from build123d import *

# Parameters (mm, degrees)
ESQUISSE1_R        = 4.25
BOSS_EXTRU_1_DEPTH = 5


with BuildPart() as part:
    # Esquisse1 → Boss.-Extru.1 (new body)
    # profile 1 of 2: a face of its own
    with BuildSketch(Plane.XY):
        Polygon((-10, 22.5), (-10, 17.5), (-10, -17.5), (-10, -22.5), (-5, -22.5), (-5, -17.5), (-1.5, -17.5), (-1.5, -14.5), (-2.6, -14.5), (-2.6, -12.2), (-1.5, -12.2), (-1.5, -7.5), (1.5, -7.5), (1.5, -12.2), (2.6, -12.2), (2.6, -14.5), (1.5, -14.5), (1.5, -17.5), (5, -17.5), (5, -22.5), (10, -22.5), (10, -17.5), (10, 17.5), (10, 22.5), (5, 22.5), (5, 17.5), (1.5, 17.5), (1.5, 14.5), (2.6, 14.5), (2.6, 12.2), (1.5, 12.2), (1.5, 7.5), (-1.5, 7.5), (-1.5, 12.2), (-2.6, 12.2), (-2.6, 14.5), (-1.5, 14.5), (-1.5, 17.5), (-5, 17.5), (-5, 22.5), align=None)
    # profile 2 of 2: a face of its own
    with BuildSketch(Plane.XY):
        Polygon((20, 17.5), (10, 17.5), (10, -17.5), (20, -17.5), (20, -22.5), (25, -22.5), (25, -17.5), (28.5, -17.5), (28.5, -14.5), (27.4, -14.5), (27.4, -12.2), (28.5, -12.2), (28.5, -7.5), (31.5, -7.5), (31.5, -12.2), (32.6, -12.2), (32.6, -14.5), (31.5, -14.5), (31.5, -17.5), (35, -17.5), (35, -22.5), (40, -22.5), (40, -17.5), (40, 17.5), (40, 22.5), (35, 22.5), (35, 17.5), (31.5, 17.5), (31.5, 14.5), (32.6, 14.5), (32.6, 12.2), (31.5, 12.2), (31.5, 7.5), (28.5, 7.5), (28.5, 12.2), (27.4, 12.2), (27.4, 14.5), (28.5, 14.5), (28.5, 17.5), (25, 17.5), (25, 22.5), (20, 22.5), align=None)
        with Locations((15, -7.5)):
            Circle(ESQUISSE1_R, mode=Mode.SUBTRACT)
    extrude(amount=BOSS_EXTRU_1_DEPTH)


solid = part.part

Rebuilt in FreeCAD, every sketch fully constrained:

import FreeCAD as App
import Part
import Sketcher

V = App.Vector
Q = App.Units.Quantity

doc = App.newDocument("Part")
params = doc.addObject("Spreadsheet::Sheet", "Params")
for row, (alias, value) in enumerate([
    ("sketch1_diameter", "8.5 mm"),
    ("sketch1_width", "5 mm"),
    ("sketch1_width2", "3 mm"),
    ("sketch1_width3", "10 mm"),
    ("sketch1_height", "45 mm"),
    ("pad1_length", "5 mm"),
], start=1):
    params.set(f"A{row}", alias)
    params.set(f"B{row}", "=" + value)
    params.setAlias(f"B{row}", alias)

body = doc.addObject("PartDesign::Body", "Body")

sketch1 = body.newObject("Sketcher::SketchObject", "Sketch")
sketch1.AttachmentSupport = (doc.getObject("XY_Plane"), [""])
sketch1.MapMode = "FlatFace"
sketch1.addGeometry(Part.LineSegment(V(-10, 22.5, 0), V(-10, -22.5, 0)), False)
sketch1.addGeometry(Part.LineSegment(V(-10, -22.5, 0), V(-5, -22.5, 0)), False)
sketch1.addGeometry(Part.LineSegment(V(-5, -22.5, 0), V(-5, -17.5, 0)), False)
sketch1.addGeometry(Part.LineSegment(V(-5, -17.5, 0), V(-1.5, -17.5, 0)), False)
sketch1.addGeometry(Part.LineSegment(V(-1.5, -17.5, 0), V(-1.5, -14.5, 0)), False)
sketch1.addGeometry(Part.LineSegment(V(-1.5, -14.5, 0), V(-2.6, -14.5, 0)), False)
sketch1.addGeometry(Part.LineSegment(V(-2.6, -14.5, 0), V(-2.6, -12.2, 0)), False)
sketch1.addGeometry(Part.LineSegment(V(-2.6, -12.2, 0), V(-1.5, -12.2, 0)), False)
sketch1.addGeometry(Part.LineSegment(V(-1.5, -12.2, 0), V(-1.5, -7.5, 0)), False)
sketch1.addGeometry(Part.LineSegment(V(-1.5, -7.5, 0), V(1.5, -7.5, 0)), False)
sketch1.addGeometry(Part.LineSegment(V(1.5, -7.5, 0), V(1.5, -12.2, 0)), False)
sketch1.addGeometry(Part.LineSegment(V(1.5, -12.2, 0), V(2.6, -12.2, 0)), False)
sketch1.addGeometry(Part.LineSegment(V(2.6, -12.2, 0), V(2.6, -14.5, 0)), False)
sketch1.addGeometry(Part.LineSegment(V(2.6, -14.5, 0), V(1.5, -14.5, 0)), False)
sketch1.addGeometry(Part.LineSegment(V(1.5, -14.5, 0), V(1.5, -17.5, 0)), False)
sketch1.addGeometry(Part.LineSegment(V(1.5, -17.5, 0), V(5, -17.5, 0)), False)
sketch1.addGeometry(Part.LineSegment(V(5, -17.5, 0), V(5, -22.5, 0)), False)
sketch1.addGeometry(Part.LineSegment(V(5, -22.5, 0), V(10, -22.5, 0)), False)
sketch1.addGeometry(Part.LineSegment(V(10, -22.5, 0), V(10, -17.5, 0)), False)
sketch1.addGeometry(Part.LineSegment(V(10, -17.5, 0), V(20, -17.5, 0)), False)
sketch1.addGeometry(Part.LineSegment(V(20, -17.5, 0), V(20, -22.5, 0)), False)
sketch1.addGeometry(Part.LineSegment(V(20, -22.5, 0), V(25, -22.5, 0)), False)
sketch1.addGeometry(Part.LineSegment(V(25, -22.5, 0), V(25, -17.5, 0)), False)
sketch1.addGeometry(Part.LineSegment(V(25, -17.5, 0), V(28.5, -17.5, 0)), False)
sketch1.addGeometry(Part.LineSegment(V(28.5, -17.5, 0), V(28.5, -14.5, 0)), False)
sketch1.addGeometry(Part.LineSegment(V(28.5, -14.5, 0), V(27.4, -14.5, 0)), False)
sketch1.addGeometry(Part.LineSegment(V(27.4, -14.5, 0), V(27.4, -12.2, 0)), False)
sketch1.addGeometry(Part.LineSegment(V(27.4, -12.2, 0), V(28.5, -12.2, 0)), False)
sketch1.addGeometry(Part.LineSegment(V(28.5, -12.2, 0), V(28.5, -7.5, 0)), False)
sketch1.addGeometry(Part.LineSegment(V(28.5, -7.5, 0), V(31.5, -7.5, 0)), False)
sketch1.addGeometry(Part.LineSegment(V(31.5, -7.5, 0), V(31.5, -12.2, 0)), False)
sketch1.addGeometry(Part.LineSegment(V(31.5, -12.2, 0), V(32.6, -12.2, 0)), False)
sketch1.addGeometry(Part.LineSegment(V(32.6, -12.2, 0), V(32.6, -14.5, 0)), False)
sketch1.addGeometry(Part.LineSegment(V(32.6, -14.5, 0), V(31.5, -14.5, 0)), False)
sketch1.addGeometry(Part.LineSegment(V(31.5, -14.5, 0), V(31.5, -17.5, 0)), False)
sketch1.addGeometry(Part.LineSegment(V(31.5, -17.5, 0), V(35, -17.5, 0)), False)
sketch1.addGeometry(Part.LineSegment(V(35, -17.5, 0), V(35, -22.5, 0)), False)
sketch1.addGeometry(Part.LineSegment(V(35, -22.5, 0), V(40, -22.5, 0)), False)
sketch1.addGeometry(Part.LineSegment(V(40, -22.5, 0), V(40, 22.5, 0)), False)
sketch1.addGeometry(Part.LineSegment(V(40, 22.5, 0), V(35, 22.5, 0)), False)
sketch1.addGeometry(Part.LineSegment(V(35, 22.5, 0), V(35, 17.5, 0)), False)
sketch1.addGeometry(Part.LineSegment(V(35, 17.5, 0), V(31.5, 17.5, 0)), False)
sketch1.addGeometry(Part.LineSegment(V(31.5, 17.5, 0), V(31.5, 14.5, 0)), False)
sketch1.addGeometry(Part.LineSegment(V(31.5, 14.5, 0), V(32.6, 14.5, 0)), False)
sketch1.addGeometry(Part.LineSegment(V(32.6, 14.5, 0), V(32.6, 12.2, 0)), False)
sketch1.addGeometry(Part.LineSegment(V(32.6, 12.2, 0), V(31.5, 12.2, 0)), False)
sketch1.addGeometry(Part.LineSegment(V(31.5, 12.2, 0), V(31.5, 7.5, 0)), False)
sketch1.addGeometry(Part.LineSegment(V(31.5, 7.5, 0), V(28.5, 7.5, 0)), False)
sketch1.addGeometry(Part.LineSegment(V(28.5, 7.5, 0), V(28.5, 12.2, 0)), False)
sketch1.addGeometry(Part.LineSegment(V(28.5, 12.2, 0), V(27.4, 12.2, 0)), False)
sketch1.addGeometry(Part.LineSegment(V(27.4, 12.2, 0), V(27.4, 14.5, 0)), False)
sketch1.addGeometry(Part.LineSegment(V(27.4, 14.5, 0), V(28.5, 14.5, 0)), False)
sketch1.addGeometry(Part.LineSegment(V(28.5, 14.5, 0), V(28.5, 17.5, 0)), False)
sketch1.addGeometry(Part.LineSegment(V(28.5, 17.5, 0), V(25, 17.5, 0)), False)
sketch1.addGeometry(Part.LineSegment(V(25, 17.5, 0), V(25, 22.5, 0)), False)
sketch1.addGeometry(Part.LineSegment(V(25, 22.5, 0), V(20, 22.5, 0)), False)
sketch1.addGeometry(Part.LineSegment(V(20, 22.5, 0), V(20, 17.5, 0)), False)
sketch1.addGeometry(Part.LineSegment(V(20, 17.5, 0), V(10, 17.5, 0)), False)
sketch1.addGeometry(Part.LineSegment(V(10, 17.5, 0), V(10, 22.5, 0)), False)
sketch1.addGeometry(Part.LineSegment(V(10, 22.5, 0), V(5, 22.5, 0)), False)
sketch1.addGeometry(Part.LineSegment(V(5, 22.5, 0), V(5, 17.5, 0)), False)
sketch1.addGeometry(Part.LineSegment(V(5, 17.5, 0), V(1.5, 17.5, 0)), False)
sketch1.addGeometry(Part.LineSegment(V(1.5, 17.5, 0), V(1.5, 14.5, 0)), False)
sketch1.addGeometry(Part.LineSegment(V(1.5, 14.5, 0), V(2.6, 14.5, 0)), False)
sketch1.addGeometry(Part.LineSegment(V(2.6, 14.5, 0), V(2.6, 12.2, 0)), False)
sketch1.addGeometry(Part.LineSegment(V(2.6, 12.2, 0), V(1.5, 12.2, 0)), False)
sketch1.addGeometry(Part.LineSegment(V(1.5, 12.2, 0), V(1.5, 7.5, 0)), False)
sketch1.addGeometry(Part.LineSegment(V(1.5, 7.5, 0), V(-1.5, 7.5, 0)), False)
sketch1.addGeometry(Part.LineSegment(V(-1.5, 7.5, 0), V(-1.5, 12.2, 0)), False)
sketch1.addGeometry(Part.LineSegment(V(-1.5, 12.2, 0), V(-2.6, 12.2, 0)), False)
sketch1.addGeometry(Part.LineSegment(V(-2.6, 12.2, 0), V(-2.6, 14.5, 0)), False)
sketch1.addGeometry(Part.LineSegment(V(-2.6, 14.5, 0), V(-1.5, 14.5, 0)), False)
sketch1.addGeometry(Part.LineSegment(V(-1.5, 14.5, 0), V(-1.5, 17.5, 0)), False)
sketch1.addGeometry(Part.LineSegment(V(-1.5, 17.5, 0), V(-5, 17.5, 0)), False)
sketch1.addGeometry(Part.LineSegment(V(-5, 17.5, 0), V(-5, 22.5, 0)), False)
sketch1.addGeometry(Part.LineSegment(V(-5, 22.5, 0), V(-10, 22.5, 0)), False)
sketch1.addGeometry(Part.Circle(V(15, -7.5, 0), V(0, 0, 1), 4.2), False)
sketch1.addConstraint(Sketcher.Constraint("Coincident", 0, 2, 1, 1))
sketch1.addConstraint(Sketcher.Constraint("Coincident", 1, 2, 2, 1))
sketch1.addConstraint(Sketcher.Constraint("Coincident", 2, 2, 3, 1))
sketch1.addConstraint(Sketcher.Constraint("Coincident", 3, 2, 4, 1))
sketch1.addConstraint(Sketcher.Constraint("Coincident", 4, 2, 5, 1))
sketch1.addConstraint(Sketcher.Constraint("Coincident", 5, 2, 6, 1))
sketch1.addConstraint(Sketcher.Constraint("Coincident", 6, 2, 7, 1))
sketch1.addConstraint(Sketcher.Constraint("Coincident", 7, 2, 8, 1))
sketch1.addConstraint(Sketcher.Constraint("Coincident", 8, 2, 9, 1))
sketch1.addConstraint(Sketcher.Constraint("Coincident", 9, 2, 10, 1))
sketch1.addConstraint(Sketcher.Constraint("Coincident", 10, 2, 11, 1))
sketch1.addConstraint(Sketcher.Constraint("Coincident", 11, 2, 12, 1))
sketch1.addConstraint(Sketcher.Constraint("Coincident", 12, 2, 13, 1))
sketch1.addConstraint(Sketcher.Constraint("Coincident", 13, 2, 14, 1))
sketch1.addConstraint(Sketcher.Constraint("Coincident", 14, 2, 15, 1))
sketch1.addConstraint(Sketcher.Constraint("Coincident", 15, 2, 16, 1))
sketch1.addConstraint(Sketcher.Constraint("Coincident", 16, 2, 17, 1))
sketch1.addConstraint(Sketcher.Constraint("Coincident", 17, 2, 18, 1))
sketch1.addConstraint(Sketcher.Constraint("Coincident", 18, 2, 19, 1))
sketch1.addConstraint(Sketcher.Constraint("Coincident", 19, 2, 20, 1))
sketch1.addConstraint(Sketcher.Constraint("Coincident", 20, 2, 21, 1))
sketch1.addConstraint(Sketcher.Constraint("Coincident", 21, 2, 22, 1))
sketch1.addConstraint(Sketcher.Constraint("Coincident", 22, 2, 23, 1))
sketch1.addConstraint(Sketcher.Constraint("Coincident", 23, 2, 24, 1))
sketch1.addConstraint(Sketcher.Constraint("Coincident", 24, 2, 25, 1))
sketch1.addConstraint(Sketcher.Constraint("Coincident", 25, 2, 26, 1))
sketch1.addConstraint(Sketcher.Constraint("Coincident", 26, 2, 27, 1))
sketch1.addConstraint(Sketcher.Constraint("Coincident", 27, 2, 28, 1))
sketch1.addConstraint(Sketcher.Constraint("Coincident", 28, 2, 29, 1))
sketch1.addConstraint(Sketcher.Constraint("Coincident", 29, 2, 30, 1))
sketch1.addConstraint(Sketcher.Constraint("Coincident", 30, 2, 31, 1))
sketch1.addConstraint(Sketcher.Constraint("Coincident", 31, 2, 32, 1))
sketch1.addConstraint(Sketcher.Constraint("Coincident", 32, 2, 33, 1))
sketch1.addConstraint(Sketcher.Constraint("Coincident", 33, 2, 34, 1))
sketch1.addConstraint(Sketcher.Constraint("Coincident", 34, 2, 35, 1))
sketch1.addConstraint(Sketcher.Constraint("Coincident", 35, 2, 36, 1))
sketch1.addConstraint(Sketcher.Constraint("Coincident", 36, 2, 37, 1))
sketch1.addConstraint(Sketcher.Constraint("Coincident", 37, 2, 38, 1))
sketch1.addConstraint(Sketcher.Constraint("Coincident", 38, 2, 39, 1))
sketch1.addConstraint(Sketcher.Constraint("Coincident", 39, 2, 40, 1))
sketch1.addConstraint(Sketcher.Constraint("Coincident", 40, 2, 41, 1))
sketch1.addConstraint(Sketcher.Constraint("Coincident", 41, 2, 42, 1))
sketch1.addConstraint(Sketcher.Constraint("Coincident", 42, 2, 43, 1))
sketch1.addConstraint(Sketcher.Constraint("Coincident", 43, 2, 44, 1))
sketch1.addConstraint(Sketcher.Constraint("Coincident", 44, 2, 45, 1))
sketch1.addConstraint(Sketcher.Constraint("Coincident", 45, 2, 46, 1))
sketch1.addConstraint(Sketcher.Constraint("Coincident", 46, 2, 47, 1))
sketch1.addConstraint(Sketcher.Constraint("Coincident", 47, 2, 48, 1))
sketch1.addConstraint(Sketcher.Constraint("Coincident", 48, 2, 49, 1))
sketch1.addConstraint(Sketcher.Constraint("Coincident", 49, 2, 50, 1))
sketch1.addConstraint(Sketcher.Constraint("Coincident", 50, 2, 51, 1))
sketch1.addConstraint(Sketcher.Constraint("Coincident", 51, 2, 52, 1))
sketch1.addConstraint(Sketcher.Constraint("Coincident", 52, 2, 53, 1))
sketch1.addConstraint(Sketcher.Constraint("Coincident", 53, 2, 54, 1))
sketch1.addConstraint(Sketcher.Constraint("Coincident", 54, 2, 55, 1))
sketch1.addConstraint(Sketcher.Constraint("Coincident", 55, 2, 56, 1))
sketch1.addConstraint(Sketcher.Constraint("Coincident", 56, 2, 57, 1))
sketch1.addConstraint(Sketcher.Constraint("Coincident", 57, 2, 58, 1))
sketch1.addConstraint(Sketcher.Constraint("Coincident", 58, 2, 59, 1))
sketch1.addConstraint(Sketcher.Constraint("Coincident", 59, 2, 60, 1))
sketch1.addConstraint(Sketcher.Constraint("Coincident", 60, 2, 61, 1))
sketch1.addConstraint(Sketcher.Constraint("Coincident", 61, 2, 62, 1))
sketch1.addConstraint(Sketcher.Constraint("Coincident", 62, 2, 63, 1))
sketch1.addConstraint(Sketcher.Constraint("Coincident", 63, 2, 64, 1))
sketch1.addConstraint(Sketcher.Constraint("Coincident", 64, 2, 65, 1))
sketch1.addConstraint(Sketcher.Constraint("Coincident", 65, 2, 66, 1))
sketch1.addConstraint(Sketcher.Constraint("Coincident", 66, 2, 67, 1))
sketch1.addConstraint(Sketcher.Constraint("Coincident", 67, 2, 68, 1))
sketch1.addConstraint(Sketcher.Constraint("Coincident", 68, 2, 69, 1))
sketch1.addConstraint(Sketcher.Constraint("Coincident", 69, 2, 70, 1))
sketch1.addConstraint(Sketcher.Constraint("Coincident", 70, 2, 71, 1))
sketch1.addConstraint(Sketcher.Constraint("Coincident", 71, 2, 72, 1))
sketch1.addConstraint(Sketcher.Constraint("Coincident", 72, 2, 73, 1))
sketch1.addConstraint(Sketcher.Constraint("Coincident", 73, 2, 74, 1))
sketch1.addConstraint(Sketcher.Constraint("Coincident", 74, 2, 75, 1))
sketch1.addConstraint(Sketcher.Constraint("Coincident", 75, 2, 0, 1))
sketch1.addConstraint(Sketcher.Constraint("Vertical", 0))
sketch1.addConstraint(Sketcher.Constraint("Horizontal", 1))
sketch1.addConstraint(Sketcher.Constraint("Vertical", 2))
sketch1.addConstraint(Sketcher.Constraint("Horizontal", 3))
sketch1.addConstraint(Sketcher.Constraint("Vertical", 4))
sketch1.addConstraint(Sketcher.Constraint("Horizontal", 5))
sketch1.addConstraint(Sketcher.Constraint("Vertical", 6))
sketch1.addConstraint(Sketcher.Constraint("Horizontal", 7))
sketch1.addConstraint(Sketcher.Constraint("Vertical", 8))
sketch1.addConstraint(Sketcher.Constraint("Horizontal", 9))
sketch1.addConstraint(Sketcher.Constraint("Vertical", 10))
sketch1.addConstraint(Sketcher.Constraint("Horizontal", 11))
sketch1.addConstraint(Sketcher.Constraint("Vertical", 12))
sketch1.addConstraint(Sketcher.Constraint("Horizontal", 13))
sketch1.addConstraint(Sketcher.Constraint("Vertical", 14))
sketch1.addConstraint(Sketcher.Constraint("Horizontal", 15))
sketch1.addConstraint(Sketcher.Constraint("Vertical", 16))
sketch1.addConstraint(Sketcher.Constraint("Horizontal", 17))
sketch1.addConstraint(Sketcher.Constraint("Vertical", 18))
sketch1.addConstraint(Sketcher.Constraint("Horizontal", 19))
sketch1.addConstraint(Sketcher.Constraint("Vertical", 20))
sketch1.addConstraint(Sketcher.Constraint("Horizontal", 21))
sketch1.addConstraint(Sketcher.Constraint("Vertical", 22))
sketch1.addConstraint(Sketcher.Constraint("Horizontal", 23))
sketch1.addConstraint(Sketcher.Constraint("Vertical", 24))
sketch1.addConstraint(Sketcher.Constraint("Horizontal", 25))
sketch1.addConstraint(Sketcher.Constraint("Vertical", 26))
sketch1.addConstraint(Sketcher.Constraint("Horizontal", 27))
sketch1.addConstraint(Sketcher.Constraint("Vertical", 28))
sketch1.addConstraint(Sketcher.Constraint("Horizontal", 29))
sketch1.addConstraint(Sketcher.Constraint("Vertical", 30))
sketch1.addConstraint(Sketcher.Constraint("Horizontal", 31))
sketch1.addConstraint(Sketcher.Constraint("Vertical", 32))
sketch1.addConstraint(Sketcher.Constraint("Horizontal", 33))
sketch1.addConstraint(Sketcher.Constraint("Vertical", 34))
sketch1.addConstraint(Sketcher.Constraint("Horizontal", 35))
sketch1.addConstraint(Sketcher.Constraint("Vertical", 36))
sketch1.addConstraint(Sketcher.Constraint("Horizontal", 37))
sketch1.addConstraint(Sketcher.Constraint("Vertical", 38))
sketch1.addConstraint(Sketcher.Constraint("Horizontal", 39))
sketch1.addConstraint(Sketcher.Constraint("Vertical", 40))
sketch1.addConstraint(Sketcher.Constraint("Horizontal", 41))
sketch1.addConstraint(Sketcher.Constraint("Vertical", 42))
sketch1.addConstraint(Sketcher.Constraint("Horizontal", 43))
sketch1.addConstraint(Sketcher.Constraint("Vertical", 44))
sketch1.addConstraint(Sketcher.Constraint("Horizontal", 45))
sketch1.addConstraint(Sketcher.Constraint("Vertical", 46))
sketch1.addConstraint(Sketcher.Constraint("Horizontal", 47))
sketch1.addConstraint(Sketcher.Constraint("Vertical", 48))
sketch1.addConstraint(Sketcher.Constraint("Horizontal", 49))
sketch1.addConstraint(Sketcher.Constraint("Vertical", 50))
sketch1.addConstraint(Sketcher.Constraint("Horizontal", 51))
sketch1.addConstraint(Sketcher.Constraint("Vertical", 52))
sketch1.addConstraint(Sketcher.Constraint("Horizontal", 53))
sketch1.addConstraint(Sketcher.Constraint("Vertical", 54))
sketch1.addConstraint(Sketcher.Constraint("Horizontal", 55))
sketch1.addConstraint(Sketcher.Constraint("Vertical", 56))
sketch1.addConstraint(Sketcher.Constraint("Horizontal", 57))
sketch1.addConstraint(Sketcher.Constraint("Vertical", 58))
sketch1.addConstraint(Sketcher.Constraint("Horizontal", 59))
sketch1.addConstraint(Sketcher.Constraint("Vertical", 60))
sketch1.addConstraint(Sketcher.Constraint("Horizontal", 61))
sketch1.addConstraint(Sketcher.Constraint("Vertical", 62))
sketch1.addConstraint(Sketcher.Constraint("Horizontal", 63))
sketch1.addConstraint(Sketcher.Constraint("Vertical", 64))
sketch1.addConstraint(Sketcher.Constraint("Horizontal", 65))
sketch1.addConstraint(Sketcher.Constraint("Vertical", 66))
sketch1.addConstraint(Sketcher.Constraint("Horizontal", 67))
sketch1.addConstraint(Sketcher.Constraint("Vertical", 68))
sketch1.addConstraint(Sketcher.Constraint("Horizontal", 69))
sketch1.addConstraint(Sketcher.Constraint("Vertical", 70))
sketch1.addConstraint(Sketcher.Constraint("Horizontal", 71))
sketch1.addConstraint(Sketcher.Constraint("Vertical", 72))
sketch1.addConstraint(Sketcher.Constraint("Horizontal", 73))
sketch1.addConstraint(Sketcher.Constraint("Vertical", 74))
sketch1.addConstraint(Sketcher.Constraint("Horizontal", 75))
sketch1.addConstraint(Sketcher.Constraint("Symmetric", 0, 2, 58, 2, -1, 1))
sketch1.addConstraint(Sketcher.Constraint("Symmetric", 2, 2, 60, 2, -1, 1))
sketch1.addConstraint(Sketcher.Constraint("Symmetric", 4, 2, 62, 2, -1, 1))
sketch1.addConstraint(Sketcher.Constraint("Symmetric", 6, 2, 64, 2, -1, 1))
sketch1.addConstraint(Sketcher.Constraint("Symmetric", 8, 2, 66, 2, -1, 1))
sketch1.addConstraint(Sketcher.Constraint("Symmetric", 10, 2, 68, 2, -1, 1))
sketch1.addConstraint(Sketcher.Constraint("Symmetric", 12, 2, 70, 2, -1, 1))
sketch1.addConstraint(Sketcher.Constraint("Symmetric", 14, 2, 72, 2, -1, 1))
sketch1.addConstraint(Sketcher.Constraint("Symmetric", 16, 2, 74, 2, -1, 1))
sketch1.addConstraint(Sketcher.Constraint("Symmetric", 7, 2, 10, 2, -2))
sketch1.addConstraint(Sketcher.Constraint("Symmetric", 5, 2, 12, 2, -2))
sketch1.addConstraint(Sketcher.Constraint("Symmetric", 3, 2, 14, 2, -2))
sketch1.addConstraint(Sketcher.Constraint("Symmetric", 1, 2, 16, 2, -2))
sketch1.addConstraint(Sketcher.Constraint("Symmetric", 36, 2, 39, 2, -1))
sketch1.addConstraint(Sketcher.Constraint("Symmetric", 34, 2, 41, 2, -1))
sketch1.addConstraint(Sketcher.Constraint("Symmetric", 32, 2, 43, 2, -1))
sketch1.addConstraint(Sketcher.Constraint("Symmetric", 30, 2, 45, 2, -1))
sketch1.addConstraint(Sketcher.Constraint("Symmetric", 28, 2, 47, 2, -1))
sketch1.addConstraint(Sketcher.Constraint("Symmetric", 26, 2, 49, 2, -1))
sketch1.addConstraint(Sketcher.Constraint("Symmetric", 24, 2, 51, 2, -1))
sketch1.addConstraint(Sketcher.Constraint("Symmetric", 22, 2, 53, 2, -1))
sketch1.addConstraint(Sketcher.Constraint("Symmetric", 20, 2, 55, 2, -1))
sketch1.addConstraint(Sketcher.Constraint("Symmetric", 18, 2, 57, 2, -1))
sketch1.addConstraint(Sketcher.Constraint("Horizontal", 76, 3, 8, 2))
sketch1.addConstraint(Sketcher.Constraint("Horizontal", 15, 2, 18, 2))
sketch1.addConstraint(Sketcher.Constraint("Horizontal", 17, 2, 20, 2))
sketch1.addConstraint(Sketcher.Constraint("Horizontal", 19, 2, 22, 2))
sketch1.addConstraint(Sketcher.Constraint("Horizontal", 13, 2, 24, 2))
sketch1.addConstraint(Sketcher.Constraint("Horizontal", 11, 2, 26, 2))
sketch1.addConstraint(Sketcher.Constraint("Horizontal", 9, 2, 28, 2))
sketch1.addConstraint(Sketcher.Constraint("Horizontal", 27, 2, 30, 2))
sketch1.addConstraint(Sketcher.Constraint("Horizontal", 25, 2, 32, 2))
sketch1.addConstraint(Sketcher.Constraint("Horizontal", 23, 2, 34, 2))
sketch1.addConstraint(Sketcher.Constraint("Horizontal", 21, 2, 36, 2))
sketch1.addConstraint(Sketcher.Constraint("Vertical", 4, 2, 7, 2))
sketch1.addConstraint(Sketcher.Constraint("Vertical", 24, 2, 27, 2))
sketch1.addConstraint(Sketcher.Constraint("Vertical", 30, 2, 33, 2))
sketch1.addConstraint(Sketcher.Constraint("Equal", 17, 21))
sketch1.addConstraint(Sketcher.Constraint("Equal", 15, 23))
sketch1.addConstraint(Sketcher.Constraint("Equal", 13, 25))
sketch1.addConstraint(Sketcher.Constraint("Equal", 9, 29))
sketch1.addConstraint(Sketcher.Constraint("Equal", 27, 31))
sketch1.addConstraint(Sketcher.Constraint("Equal", 23, 35))
sketch1.addConstraint(Sketcher.Constraint("Equal", 21, 37))
sketch1.addConstraint(Sketcher.Constraint("Equal", 75, 2))
sketch1.addConstraint(Sketcher.Constraint("Equal", 67, 4))
sketch1.addConstraint(Sketcher.Constraint("Diameter", 76, Q("8.5 mm")))
sketch1.addConstraint(Sketcher.Constraint("DistanceX", 1, 1, 1, 2, Q("5 mm")))
sketch1.addConstraint(Sketcher.Constraint("DistanceX", 9, 1, 9, 2, Q("3 mm")))
sketch1.addConstraint(Sketcher.Constraint("DistanceX", 19, 1, 19, 2, Q("10 mm")))
sketch1.addConstraint(Sketcher.Constraint("DistanceY", 0, 2, 0, 1, Q("45 mm")))
sketch1.addConstraint(Sketcher.Constraint("DistanceX", 3, 1, 3, 2, Q("3.5 mm")))
sketch1.addConstraint(Sketcher.Constraint("DistanceX", 5, 2, 5, 1, Q("1.1 mm")))
sketch1.addConstraint(Sketcher.Constraint("DistanceY", 6, 1, 6, 2, Q("2.3 mm")))
sketch1.addConstraint(Sketcher.Constraint("DistanceY", 8, 1, 8, 2, Q("4.7 mm")))
sketch1.addConstraint(Sketcher.Constraint("DistanceX", -1, 1, 76, 3, Q("15 mm")))
sketch1.setExpression("Constraints[198]", "Params.sketch1_diameter")
sketch1.setExpression("Constraints[199]", "Params.sketch1_width")
sketch1.setExpression("Constraints[200]", "Params.sketch1_width2")
sketch1.setExpression("Constraints[201]", "Params.sketch1_width3")
sketch1.setExpression("Constraints[202]", "Params.sketch1_height")
pad1 = body.newObject("PartDesign::Pad", "Pad")
pad1.Profile = sketch1
pad1.setExpression("Length", "Params.pad1_length")

doc.recompute()
